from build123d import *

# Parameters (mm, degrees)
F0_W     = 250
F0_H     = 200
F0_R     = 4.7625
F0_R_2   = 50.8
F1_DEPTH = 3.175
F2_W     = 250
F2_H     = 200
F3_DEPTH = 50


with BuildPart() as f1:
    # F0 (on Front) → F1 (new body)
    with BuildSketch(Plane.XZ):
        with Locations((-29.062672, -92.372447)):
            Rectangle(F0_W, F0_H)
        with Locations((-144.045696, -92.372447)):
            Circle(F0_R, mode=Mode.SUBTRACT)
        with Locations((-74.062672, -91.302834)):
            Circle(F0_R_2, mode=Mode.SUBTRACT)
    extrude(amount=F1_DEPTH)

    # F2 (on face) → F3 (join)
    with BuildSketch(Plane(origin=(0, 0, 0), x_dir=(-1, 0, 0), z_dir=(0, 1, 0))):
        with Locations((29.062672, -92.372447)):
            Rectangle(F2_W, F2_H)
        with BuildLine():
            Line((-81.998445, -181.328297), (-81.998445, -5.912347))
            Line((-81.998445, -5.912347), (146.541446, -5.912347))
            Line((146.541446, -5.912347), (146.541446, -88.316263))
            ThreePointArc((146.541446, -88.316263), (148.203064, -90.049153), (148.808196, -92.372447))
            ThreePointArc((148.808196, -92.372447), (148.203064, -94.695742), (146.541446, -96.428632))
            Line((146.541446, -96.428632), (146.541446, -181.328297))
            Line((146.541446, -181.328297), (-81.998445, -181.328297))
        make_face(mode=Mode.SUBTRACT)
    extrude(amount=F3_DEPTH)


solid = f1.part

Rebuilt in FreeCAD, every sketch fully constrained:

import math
import FreeCAD as App
import Part
import Sketcher
from FreeCAD import Vector
Q = App.Units.Quantity

doc = App.newDocument("Part")
body = doc.addObject("PartDesign::Body", "Body")

sketch1 = body.newObject("Sketcher::SketchObject", "Sketch")
sketch1.AttachmentSupport = (doc.getObject("XZ_Plane"), [""])
sketch1.MapMode = "FlatFace"
sketch1.addGeometry(Part.LineSegment(Vector(-154.1, 7.6, 0), Vector(-154.1, -192.4, 0)), False)
sketch1.addGeometry(Part.LineSegment(Vector(-154.1, -192.4, 0), Vector(95.9, -192.4, 0)), False)
sketch1.addGeometry(Part.LineSegment(Vector(95.9, -192.4, 0), Vector(95.9, 7.6, 0)), False)
sketch1.addGeometry(Part.LineSegment(Vector(95.9, 7.6, 0), Vector(-154.1, 7.6, 0)), False)
sketch1.addGeometry(Part.Circle(Vector(-144, -92.4, 0), Vector(0, 0, 1), 4.8), False)
sketch1.addGeometry(Part.Circle(Vector(-74.1, -91.3, 0), Vector(0, 0, 1), 50.8), False)
sketch1.addConstraint(Sketcher.Constraint("Coincident", 0, 2, 1, 1))
sketch1.addConstraint(Sketcher.Constraint("Coincident", 1, 2, 2, 1))
sketch1.addConstraint(Sketcher.Constraint("Coincident", 2, 2, 3, 1))
sketch1.addConstraint(Sketcher.Constraint("Coincident", 3, 2, 0, 1))
sketch1.addConstraint(Sketcher.Constraint("Vertical", 0))
sketch1.addConstraint(Sketcher.Constraint("Horizontal", 1))
sketch1.addConstraint(Sketcher.Constraint("Vertical", 2))
sketch1.addConstraint(Sketcher.Constraint("Horizontal", 3))
sketch1.addConstraint(Sketcher.Constraint("Diameter", 5, Q("4 in")))
sketch1.addConstraint(Sketcher.Constraint("Diameter", 4, Q("0.375 in")))
sketch1.addConstraint(Sketcher.Constraint("DistanceX", 1, 1, 1, 2, Q("250 mm")))
sketch1.addConstraint(Sketcher.Constraint("DistanceY", 0, 2, 0, 1, Q("200 mm")))
sketch1.addConstraint(Sketcher.Constraint("DistanceY", 0, 2, 4, 3, Q("100 mm")))
sketch1.addConstraint(Sketcher.Constraint("DistanceX", 0, 2, 5, 3, Q("80 mm")))
sketch1.addConstraint(Sketcher.Constraint("DistanceX", 0, 2, -1, 1, Q("154.062672 mm")))
sketch1.addConstraint(Sketcher.Constraint("DistanceX", 4, 3, -1, 1, Q("144.045696 mm")))
sketch1.addConstraint(Sketcher.Constraint("DistanceY", 4, 3, -1, 1, Q("92.372447 mm")))
sketch1.addConstraint(Sketcher.Constraint("DistanceY", 5, 3, -1, 1, Q("91.302834 mm")))
pad1 = body.newObject("PartDesign::Pad", "Pad")
pad1.Profile = sketch1
pad1.Length = Q("0.125 in")

sketch2 = body.newObject("Sketcher::SketchObject", "Sketch001")
sketch2.AttachmentSupport = (doc.getObject("XZ_Plane"), [""])
sketch2.MapMode = "FlatFace"
sketch2.addGeometry(Part.LineSegment(Vector(95.9, 7.6, 0), Vector(95.9, -192.4, 0)), False)
sketch2.addGeometry(Part.LineSegment(Vector(95.9, -192.4, 0), Vector(-154.1, -192.4, 0)), False)
sketch2.addGeometry(Part.LineSegment(Vector(-154.1, -192.4, 0), Vector(-154.1, 7.6, 0)), False)
sketch2.addGeometry(Part.LineSegment(Vector(-154.1, 7.6, 0), Vector(95.9, 7.6, 0)), False)
sketch2.addGeometry(Part.LineSegment(Vector(-146.5, -181.3, 0), Vector(82, -181.3, 0)), False)
sketch2.addGeometry(Part.LineSegment(Vector(82, -181.3, 0), Vector(82, -5.9, 0)), False)
sketch2.addGeometry(Part.LineSegment(Vector(82, -5.9, 0), Vector(-146.5, -5.9, 0)), False)
sketch2.addGeometry(Part.LineSegment(Vector(-146.5, -5.9, 0), Vector(-146.5, -88.3, 0)), False)
sketch2.addGeometry(Part.ArcOfCircle(Part.Circle(Vector(-144, -92.4, 0), Vector(0, 0, 1), 4.8), math.radians(122), math.radians(180)), False)
sketch2.addGeometry(Part.ArcOfCircle(Part.Circle(Vector(-144, -92.4, 0), Vector(0, 0, 1), 4.8), math.radians(180), math.radians(238)), False)
sketch2.addGeometry(Part.LineSegment(Vector(-146.5, -96.4, 0), Vector(-146.5, -181.3, 0)), False)
sketch2.addConstraint(Sketcher.Constraint("Coincident", 0, 2, 1, 1))
sketch2.addConstraint(Sketcher.Constraint("Coincident", 1, 2, 2, 1))
sketch2.addConstraint(Sketcher.Constraint("Coincident", 2, 2, 3, 1))
sketch2.addConstraint(Sketcher.Constraint("Coincident", 3, 2, 0, 1))
sketch2.addConstraint(Sketcher.Constraint("Coincident", 4, 2, 5, 1))
sketch2.addConstraint(Sketcher.Constraint("Coincident", 5, 2, 6, 1))
sketch2.addConstraint(Sketcher.Constraint("Coincident", 6, 2, 7, 1))
sketch2.addConstraint(Sketcher.Constraint("Coincident", 7, 2, 8, 1))
sketch2.addConstraint(Sketcher.Constraint("Tangent", 8, 2, 9, 1))
sketch2.addConstraint(Sketcher.Constraint("Coincident", 9, 2, 10, 1))
sketch2.addConstraint(Sketcher.Constraint("Coincident", 10, 2, 4, 1))
sketch2.addConstraint(Sketcher.Constraint("Vertical", 0))
sketch2.addConstraint(Sketcher.Constraint("Horizontal", 1))
sketch2.addConstraint(Sketcher.Constraint("Vertical", 2))
sketch2.addConstraint(Sketcher.Constraint("Horizontal", 3))
sketch2.addConstraint(Sketcher.Constraint("Horizontal", 4))
sketch2.addConstraint(Sketcher.Constraint("Vertical", 5))
sketch2.addConstraint(Sketcher.Constraint("Horizontal", 6))
sketch2.addConstraint(Sketcher.Constraint("Vertical", 7))
sketch2.addConstraint(Sketcher.Constraint("Vertical", 10))
sketch2.addConstraint(Sketcher.Constraint("Equal", 8, 9))
sketch2.addConstraint(Sketcher.Constraint("Horizontal", 9, 3, 8, 2))
sketch2.addConstraint(Sketcher.Constraint("Vertical", 7, 2, 9, 2))
sketch2.addConstraint(Sketcher.Constraint("Radius", 8, Q("0.1874999 in")))
sketch2.addConstraint(Sketcher.Constraint("DistanceX", 1, 2, 1, 1, Q("250 mm")))
sketch2.addConstraint(Sketcher.Constraint("DistanceY", 0, 2, 0, 1, Q("200 mm")))
sketch2.addConstraint(Sketcher.Constraint("DistanceY", 1, 2, 7, 2, Q("4.0967002 in")))
sketch2.addConstraint(Sketcher.Constraint("DistanceX", 4, 1, 4, 2, Q("228.539891 mm")))
sketch2.addConstraint(Sketcher.Constraint("DistanceY", 5, 1, 5, 2, Q("175.41595 mm")))
sketch2.addConstraint(Sketcher.Constraint("DistanceX", 8, 3, -1, 1, Q("144.045698 mm")))
sketch2.addConstraint(Sketcher.Constraint("DistanceY", 0, 2, 9, 3, Q("99.999999 mm")))
sketch2.addConstraint(Sketcher.Constraint("DistanceY", 5, 2, 3, 2, Q("13.5399 mm")))
sketch2.addConstraint(Sketcher.Constraint("DistanceX", 1, 2, -1, 1, Q("154.062672 mm")))
sketch2.addConstraint(Sketcher.Constraint("DistanceY", 9, 2, -1, 1, Q("96.428632 mm")))
pad2 = body.newObject("PartDesign::Pad", "Pad001")
pad2.Profile = sketch2
pad2.Length = 50
pad2.Reversed = True

doc.recompute()
